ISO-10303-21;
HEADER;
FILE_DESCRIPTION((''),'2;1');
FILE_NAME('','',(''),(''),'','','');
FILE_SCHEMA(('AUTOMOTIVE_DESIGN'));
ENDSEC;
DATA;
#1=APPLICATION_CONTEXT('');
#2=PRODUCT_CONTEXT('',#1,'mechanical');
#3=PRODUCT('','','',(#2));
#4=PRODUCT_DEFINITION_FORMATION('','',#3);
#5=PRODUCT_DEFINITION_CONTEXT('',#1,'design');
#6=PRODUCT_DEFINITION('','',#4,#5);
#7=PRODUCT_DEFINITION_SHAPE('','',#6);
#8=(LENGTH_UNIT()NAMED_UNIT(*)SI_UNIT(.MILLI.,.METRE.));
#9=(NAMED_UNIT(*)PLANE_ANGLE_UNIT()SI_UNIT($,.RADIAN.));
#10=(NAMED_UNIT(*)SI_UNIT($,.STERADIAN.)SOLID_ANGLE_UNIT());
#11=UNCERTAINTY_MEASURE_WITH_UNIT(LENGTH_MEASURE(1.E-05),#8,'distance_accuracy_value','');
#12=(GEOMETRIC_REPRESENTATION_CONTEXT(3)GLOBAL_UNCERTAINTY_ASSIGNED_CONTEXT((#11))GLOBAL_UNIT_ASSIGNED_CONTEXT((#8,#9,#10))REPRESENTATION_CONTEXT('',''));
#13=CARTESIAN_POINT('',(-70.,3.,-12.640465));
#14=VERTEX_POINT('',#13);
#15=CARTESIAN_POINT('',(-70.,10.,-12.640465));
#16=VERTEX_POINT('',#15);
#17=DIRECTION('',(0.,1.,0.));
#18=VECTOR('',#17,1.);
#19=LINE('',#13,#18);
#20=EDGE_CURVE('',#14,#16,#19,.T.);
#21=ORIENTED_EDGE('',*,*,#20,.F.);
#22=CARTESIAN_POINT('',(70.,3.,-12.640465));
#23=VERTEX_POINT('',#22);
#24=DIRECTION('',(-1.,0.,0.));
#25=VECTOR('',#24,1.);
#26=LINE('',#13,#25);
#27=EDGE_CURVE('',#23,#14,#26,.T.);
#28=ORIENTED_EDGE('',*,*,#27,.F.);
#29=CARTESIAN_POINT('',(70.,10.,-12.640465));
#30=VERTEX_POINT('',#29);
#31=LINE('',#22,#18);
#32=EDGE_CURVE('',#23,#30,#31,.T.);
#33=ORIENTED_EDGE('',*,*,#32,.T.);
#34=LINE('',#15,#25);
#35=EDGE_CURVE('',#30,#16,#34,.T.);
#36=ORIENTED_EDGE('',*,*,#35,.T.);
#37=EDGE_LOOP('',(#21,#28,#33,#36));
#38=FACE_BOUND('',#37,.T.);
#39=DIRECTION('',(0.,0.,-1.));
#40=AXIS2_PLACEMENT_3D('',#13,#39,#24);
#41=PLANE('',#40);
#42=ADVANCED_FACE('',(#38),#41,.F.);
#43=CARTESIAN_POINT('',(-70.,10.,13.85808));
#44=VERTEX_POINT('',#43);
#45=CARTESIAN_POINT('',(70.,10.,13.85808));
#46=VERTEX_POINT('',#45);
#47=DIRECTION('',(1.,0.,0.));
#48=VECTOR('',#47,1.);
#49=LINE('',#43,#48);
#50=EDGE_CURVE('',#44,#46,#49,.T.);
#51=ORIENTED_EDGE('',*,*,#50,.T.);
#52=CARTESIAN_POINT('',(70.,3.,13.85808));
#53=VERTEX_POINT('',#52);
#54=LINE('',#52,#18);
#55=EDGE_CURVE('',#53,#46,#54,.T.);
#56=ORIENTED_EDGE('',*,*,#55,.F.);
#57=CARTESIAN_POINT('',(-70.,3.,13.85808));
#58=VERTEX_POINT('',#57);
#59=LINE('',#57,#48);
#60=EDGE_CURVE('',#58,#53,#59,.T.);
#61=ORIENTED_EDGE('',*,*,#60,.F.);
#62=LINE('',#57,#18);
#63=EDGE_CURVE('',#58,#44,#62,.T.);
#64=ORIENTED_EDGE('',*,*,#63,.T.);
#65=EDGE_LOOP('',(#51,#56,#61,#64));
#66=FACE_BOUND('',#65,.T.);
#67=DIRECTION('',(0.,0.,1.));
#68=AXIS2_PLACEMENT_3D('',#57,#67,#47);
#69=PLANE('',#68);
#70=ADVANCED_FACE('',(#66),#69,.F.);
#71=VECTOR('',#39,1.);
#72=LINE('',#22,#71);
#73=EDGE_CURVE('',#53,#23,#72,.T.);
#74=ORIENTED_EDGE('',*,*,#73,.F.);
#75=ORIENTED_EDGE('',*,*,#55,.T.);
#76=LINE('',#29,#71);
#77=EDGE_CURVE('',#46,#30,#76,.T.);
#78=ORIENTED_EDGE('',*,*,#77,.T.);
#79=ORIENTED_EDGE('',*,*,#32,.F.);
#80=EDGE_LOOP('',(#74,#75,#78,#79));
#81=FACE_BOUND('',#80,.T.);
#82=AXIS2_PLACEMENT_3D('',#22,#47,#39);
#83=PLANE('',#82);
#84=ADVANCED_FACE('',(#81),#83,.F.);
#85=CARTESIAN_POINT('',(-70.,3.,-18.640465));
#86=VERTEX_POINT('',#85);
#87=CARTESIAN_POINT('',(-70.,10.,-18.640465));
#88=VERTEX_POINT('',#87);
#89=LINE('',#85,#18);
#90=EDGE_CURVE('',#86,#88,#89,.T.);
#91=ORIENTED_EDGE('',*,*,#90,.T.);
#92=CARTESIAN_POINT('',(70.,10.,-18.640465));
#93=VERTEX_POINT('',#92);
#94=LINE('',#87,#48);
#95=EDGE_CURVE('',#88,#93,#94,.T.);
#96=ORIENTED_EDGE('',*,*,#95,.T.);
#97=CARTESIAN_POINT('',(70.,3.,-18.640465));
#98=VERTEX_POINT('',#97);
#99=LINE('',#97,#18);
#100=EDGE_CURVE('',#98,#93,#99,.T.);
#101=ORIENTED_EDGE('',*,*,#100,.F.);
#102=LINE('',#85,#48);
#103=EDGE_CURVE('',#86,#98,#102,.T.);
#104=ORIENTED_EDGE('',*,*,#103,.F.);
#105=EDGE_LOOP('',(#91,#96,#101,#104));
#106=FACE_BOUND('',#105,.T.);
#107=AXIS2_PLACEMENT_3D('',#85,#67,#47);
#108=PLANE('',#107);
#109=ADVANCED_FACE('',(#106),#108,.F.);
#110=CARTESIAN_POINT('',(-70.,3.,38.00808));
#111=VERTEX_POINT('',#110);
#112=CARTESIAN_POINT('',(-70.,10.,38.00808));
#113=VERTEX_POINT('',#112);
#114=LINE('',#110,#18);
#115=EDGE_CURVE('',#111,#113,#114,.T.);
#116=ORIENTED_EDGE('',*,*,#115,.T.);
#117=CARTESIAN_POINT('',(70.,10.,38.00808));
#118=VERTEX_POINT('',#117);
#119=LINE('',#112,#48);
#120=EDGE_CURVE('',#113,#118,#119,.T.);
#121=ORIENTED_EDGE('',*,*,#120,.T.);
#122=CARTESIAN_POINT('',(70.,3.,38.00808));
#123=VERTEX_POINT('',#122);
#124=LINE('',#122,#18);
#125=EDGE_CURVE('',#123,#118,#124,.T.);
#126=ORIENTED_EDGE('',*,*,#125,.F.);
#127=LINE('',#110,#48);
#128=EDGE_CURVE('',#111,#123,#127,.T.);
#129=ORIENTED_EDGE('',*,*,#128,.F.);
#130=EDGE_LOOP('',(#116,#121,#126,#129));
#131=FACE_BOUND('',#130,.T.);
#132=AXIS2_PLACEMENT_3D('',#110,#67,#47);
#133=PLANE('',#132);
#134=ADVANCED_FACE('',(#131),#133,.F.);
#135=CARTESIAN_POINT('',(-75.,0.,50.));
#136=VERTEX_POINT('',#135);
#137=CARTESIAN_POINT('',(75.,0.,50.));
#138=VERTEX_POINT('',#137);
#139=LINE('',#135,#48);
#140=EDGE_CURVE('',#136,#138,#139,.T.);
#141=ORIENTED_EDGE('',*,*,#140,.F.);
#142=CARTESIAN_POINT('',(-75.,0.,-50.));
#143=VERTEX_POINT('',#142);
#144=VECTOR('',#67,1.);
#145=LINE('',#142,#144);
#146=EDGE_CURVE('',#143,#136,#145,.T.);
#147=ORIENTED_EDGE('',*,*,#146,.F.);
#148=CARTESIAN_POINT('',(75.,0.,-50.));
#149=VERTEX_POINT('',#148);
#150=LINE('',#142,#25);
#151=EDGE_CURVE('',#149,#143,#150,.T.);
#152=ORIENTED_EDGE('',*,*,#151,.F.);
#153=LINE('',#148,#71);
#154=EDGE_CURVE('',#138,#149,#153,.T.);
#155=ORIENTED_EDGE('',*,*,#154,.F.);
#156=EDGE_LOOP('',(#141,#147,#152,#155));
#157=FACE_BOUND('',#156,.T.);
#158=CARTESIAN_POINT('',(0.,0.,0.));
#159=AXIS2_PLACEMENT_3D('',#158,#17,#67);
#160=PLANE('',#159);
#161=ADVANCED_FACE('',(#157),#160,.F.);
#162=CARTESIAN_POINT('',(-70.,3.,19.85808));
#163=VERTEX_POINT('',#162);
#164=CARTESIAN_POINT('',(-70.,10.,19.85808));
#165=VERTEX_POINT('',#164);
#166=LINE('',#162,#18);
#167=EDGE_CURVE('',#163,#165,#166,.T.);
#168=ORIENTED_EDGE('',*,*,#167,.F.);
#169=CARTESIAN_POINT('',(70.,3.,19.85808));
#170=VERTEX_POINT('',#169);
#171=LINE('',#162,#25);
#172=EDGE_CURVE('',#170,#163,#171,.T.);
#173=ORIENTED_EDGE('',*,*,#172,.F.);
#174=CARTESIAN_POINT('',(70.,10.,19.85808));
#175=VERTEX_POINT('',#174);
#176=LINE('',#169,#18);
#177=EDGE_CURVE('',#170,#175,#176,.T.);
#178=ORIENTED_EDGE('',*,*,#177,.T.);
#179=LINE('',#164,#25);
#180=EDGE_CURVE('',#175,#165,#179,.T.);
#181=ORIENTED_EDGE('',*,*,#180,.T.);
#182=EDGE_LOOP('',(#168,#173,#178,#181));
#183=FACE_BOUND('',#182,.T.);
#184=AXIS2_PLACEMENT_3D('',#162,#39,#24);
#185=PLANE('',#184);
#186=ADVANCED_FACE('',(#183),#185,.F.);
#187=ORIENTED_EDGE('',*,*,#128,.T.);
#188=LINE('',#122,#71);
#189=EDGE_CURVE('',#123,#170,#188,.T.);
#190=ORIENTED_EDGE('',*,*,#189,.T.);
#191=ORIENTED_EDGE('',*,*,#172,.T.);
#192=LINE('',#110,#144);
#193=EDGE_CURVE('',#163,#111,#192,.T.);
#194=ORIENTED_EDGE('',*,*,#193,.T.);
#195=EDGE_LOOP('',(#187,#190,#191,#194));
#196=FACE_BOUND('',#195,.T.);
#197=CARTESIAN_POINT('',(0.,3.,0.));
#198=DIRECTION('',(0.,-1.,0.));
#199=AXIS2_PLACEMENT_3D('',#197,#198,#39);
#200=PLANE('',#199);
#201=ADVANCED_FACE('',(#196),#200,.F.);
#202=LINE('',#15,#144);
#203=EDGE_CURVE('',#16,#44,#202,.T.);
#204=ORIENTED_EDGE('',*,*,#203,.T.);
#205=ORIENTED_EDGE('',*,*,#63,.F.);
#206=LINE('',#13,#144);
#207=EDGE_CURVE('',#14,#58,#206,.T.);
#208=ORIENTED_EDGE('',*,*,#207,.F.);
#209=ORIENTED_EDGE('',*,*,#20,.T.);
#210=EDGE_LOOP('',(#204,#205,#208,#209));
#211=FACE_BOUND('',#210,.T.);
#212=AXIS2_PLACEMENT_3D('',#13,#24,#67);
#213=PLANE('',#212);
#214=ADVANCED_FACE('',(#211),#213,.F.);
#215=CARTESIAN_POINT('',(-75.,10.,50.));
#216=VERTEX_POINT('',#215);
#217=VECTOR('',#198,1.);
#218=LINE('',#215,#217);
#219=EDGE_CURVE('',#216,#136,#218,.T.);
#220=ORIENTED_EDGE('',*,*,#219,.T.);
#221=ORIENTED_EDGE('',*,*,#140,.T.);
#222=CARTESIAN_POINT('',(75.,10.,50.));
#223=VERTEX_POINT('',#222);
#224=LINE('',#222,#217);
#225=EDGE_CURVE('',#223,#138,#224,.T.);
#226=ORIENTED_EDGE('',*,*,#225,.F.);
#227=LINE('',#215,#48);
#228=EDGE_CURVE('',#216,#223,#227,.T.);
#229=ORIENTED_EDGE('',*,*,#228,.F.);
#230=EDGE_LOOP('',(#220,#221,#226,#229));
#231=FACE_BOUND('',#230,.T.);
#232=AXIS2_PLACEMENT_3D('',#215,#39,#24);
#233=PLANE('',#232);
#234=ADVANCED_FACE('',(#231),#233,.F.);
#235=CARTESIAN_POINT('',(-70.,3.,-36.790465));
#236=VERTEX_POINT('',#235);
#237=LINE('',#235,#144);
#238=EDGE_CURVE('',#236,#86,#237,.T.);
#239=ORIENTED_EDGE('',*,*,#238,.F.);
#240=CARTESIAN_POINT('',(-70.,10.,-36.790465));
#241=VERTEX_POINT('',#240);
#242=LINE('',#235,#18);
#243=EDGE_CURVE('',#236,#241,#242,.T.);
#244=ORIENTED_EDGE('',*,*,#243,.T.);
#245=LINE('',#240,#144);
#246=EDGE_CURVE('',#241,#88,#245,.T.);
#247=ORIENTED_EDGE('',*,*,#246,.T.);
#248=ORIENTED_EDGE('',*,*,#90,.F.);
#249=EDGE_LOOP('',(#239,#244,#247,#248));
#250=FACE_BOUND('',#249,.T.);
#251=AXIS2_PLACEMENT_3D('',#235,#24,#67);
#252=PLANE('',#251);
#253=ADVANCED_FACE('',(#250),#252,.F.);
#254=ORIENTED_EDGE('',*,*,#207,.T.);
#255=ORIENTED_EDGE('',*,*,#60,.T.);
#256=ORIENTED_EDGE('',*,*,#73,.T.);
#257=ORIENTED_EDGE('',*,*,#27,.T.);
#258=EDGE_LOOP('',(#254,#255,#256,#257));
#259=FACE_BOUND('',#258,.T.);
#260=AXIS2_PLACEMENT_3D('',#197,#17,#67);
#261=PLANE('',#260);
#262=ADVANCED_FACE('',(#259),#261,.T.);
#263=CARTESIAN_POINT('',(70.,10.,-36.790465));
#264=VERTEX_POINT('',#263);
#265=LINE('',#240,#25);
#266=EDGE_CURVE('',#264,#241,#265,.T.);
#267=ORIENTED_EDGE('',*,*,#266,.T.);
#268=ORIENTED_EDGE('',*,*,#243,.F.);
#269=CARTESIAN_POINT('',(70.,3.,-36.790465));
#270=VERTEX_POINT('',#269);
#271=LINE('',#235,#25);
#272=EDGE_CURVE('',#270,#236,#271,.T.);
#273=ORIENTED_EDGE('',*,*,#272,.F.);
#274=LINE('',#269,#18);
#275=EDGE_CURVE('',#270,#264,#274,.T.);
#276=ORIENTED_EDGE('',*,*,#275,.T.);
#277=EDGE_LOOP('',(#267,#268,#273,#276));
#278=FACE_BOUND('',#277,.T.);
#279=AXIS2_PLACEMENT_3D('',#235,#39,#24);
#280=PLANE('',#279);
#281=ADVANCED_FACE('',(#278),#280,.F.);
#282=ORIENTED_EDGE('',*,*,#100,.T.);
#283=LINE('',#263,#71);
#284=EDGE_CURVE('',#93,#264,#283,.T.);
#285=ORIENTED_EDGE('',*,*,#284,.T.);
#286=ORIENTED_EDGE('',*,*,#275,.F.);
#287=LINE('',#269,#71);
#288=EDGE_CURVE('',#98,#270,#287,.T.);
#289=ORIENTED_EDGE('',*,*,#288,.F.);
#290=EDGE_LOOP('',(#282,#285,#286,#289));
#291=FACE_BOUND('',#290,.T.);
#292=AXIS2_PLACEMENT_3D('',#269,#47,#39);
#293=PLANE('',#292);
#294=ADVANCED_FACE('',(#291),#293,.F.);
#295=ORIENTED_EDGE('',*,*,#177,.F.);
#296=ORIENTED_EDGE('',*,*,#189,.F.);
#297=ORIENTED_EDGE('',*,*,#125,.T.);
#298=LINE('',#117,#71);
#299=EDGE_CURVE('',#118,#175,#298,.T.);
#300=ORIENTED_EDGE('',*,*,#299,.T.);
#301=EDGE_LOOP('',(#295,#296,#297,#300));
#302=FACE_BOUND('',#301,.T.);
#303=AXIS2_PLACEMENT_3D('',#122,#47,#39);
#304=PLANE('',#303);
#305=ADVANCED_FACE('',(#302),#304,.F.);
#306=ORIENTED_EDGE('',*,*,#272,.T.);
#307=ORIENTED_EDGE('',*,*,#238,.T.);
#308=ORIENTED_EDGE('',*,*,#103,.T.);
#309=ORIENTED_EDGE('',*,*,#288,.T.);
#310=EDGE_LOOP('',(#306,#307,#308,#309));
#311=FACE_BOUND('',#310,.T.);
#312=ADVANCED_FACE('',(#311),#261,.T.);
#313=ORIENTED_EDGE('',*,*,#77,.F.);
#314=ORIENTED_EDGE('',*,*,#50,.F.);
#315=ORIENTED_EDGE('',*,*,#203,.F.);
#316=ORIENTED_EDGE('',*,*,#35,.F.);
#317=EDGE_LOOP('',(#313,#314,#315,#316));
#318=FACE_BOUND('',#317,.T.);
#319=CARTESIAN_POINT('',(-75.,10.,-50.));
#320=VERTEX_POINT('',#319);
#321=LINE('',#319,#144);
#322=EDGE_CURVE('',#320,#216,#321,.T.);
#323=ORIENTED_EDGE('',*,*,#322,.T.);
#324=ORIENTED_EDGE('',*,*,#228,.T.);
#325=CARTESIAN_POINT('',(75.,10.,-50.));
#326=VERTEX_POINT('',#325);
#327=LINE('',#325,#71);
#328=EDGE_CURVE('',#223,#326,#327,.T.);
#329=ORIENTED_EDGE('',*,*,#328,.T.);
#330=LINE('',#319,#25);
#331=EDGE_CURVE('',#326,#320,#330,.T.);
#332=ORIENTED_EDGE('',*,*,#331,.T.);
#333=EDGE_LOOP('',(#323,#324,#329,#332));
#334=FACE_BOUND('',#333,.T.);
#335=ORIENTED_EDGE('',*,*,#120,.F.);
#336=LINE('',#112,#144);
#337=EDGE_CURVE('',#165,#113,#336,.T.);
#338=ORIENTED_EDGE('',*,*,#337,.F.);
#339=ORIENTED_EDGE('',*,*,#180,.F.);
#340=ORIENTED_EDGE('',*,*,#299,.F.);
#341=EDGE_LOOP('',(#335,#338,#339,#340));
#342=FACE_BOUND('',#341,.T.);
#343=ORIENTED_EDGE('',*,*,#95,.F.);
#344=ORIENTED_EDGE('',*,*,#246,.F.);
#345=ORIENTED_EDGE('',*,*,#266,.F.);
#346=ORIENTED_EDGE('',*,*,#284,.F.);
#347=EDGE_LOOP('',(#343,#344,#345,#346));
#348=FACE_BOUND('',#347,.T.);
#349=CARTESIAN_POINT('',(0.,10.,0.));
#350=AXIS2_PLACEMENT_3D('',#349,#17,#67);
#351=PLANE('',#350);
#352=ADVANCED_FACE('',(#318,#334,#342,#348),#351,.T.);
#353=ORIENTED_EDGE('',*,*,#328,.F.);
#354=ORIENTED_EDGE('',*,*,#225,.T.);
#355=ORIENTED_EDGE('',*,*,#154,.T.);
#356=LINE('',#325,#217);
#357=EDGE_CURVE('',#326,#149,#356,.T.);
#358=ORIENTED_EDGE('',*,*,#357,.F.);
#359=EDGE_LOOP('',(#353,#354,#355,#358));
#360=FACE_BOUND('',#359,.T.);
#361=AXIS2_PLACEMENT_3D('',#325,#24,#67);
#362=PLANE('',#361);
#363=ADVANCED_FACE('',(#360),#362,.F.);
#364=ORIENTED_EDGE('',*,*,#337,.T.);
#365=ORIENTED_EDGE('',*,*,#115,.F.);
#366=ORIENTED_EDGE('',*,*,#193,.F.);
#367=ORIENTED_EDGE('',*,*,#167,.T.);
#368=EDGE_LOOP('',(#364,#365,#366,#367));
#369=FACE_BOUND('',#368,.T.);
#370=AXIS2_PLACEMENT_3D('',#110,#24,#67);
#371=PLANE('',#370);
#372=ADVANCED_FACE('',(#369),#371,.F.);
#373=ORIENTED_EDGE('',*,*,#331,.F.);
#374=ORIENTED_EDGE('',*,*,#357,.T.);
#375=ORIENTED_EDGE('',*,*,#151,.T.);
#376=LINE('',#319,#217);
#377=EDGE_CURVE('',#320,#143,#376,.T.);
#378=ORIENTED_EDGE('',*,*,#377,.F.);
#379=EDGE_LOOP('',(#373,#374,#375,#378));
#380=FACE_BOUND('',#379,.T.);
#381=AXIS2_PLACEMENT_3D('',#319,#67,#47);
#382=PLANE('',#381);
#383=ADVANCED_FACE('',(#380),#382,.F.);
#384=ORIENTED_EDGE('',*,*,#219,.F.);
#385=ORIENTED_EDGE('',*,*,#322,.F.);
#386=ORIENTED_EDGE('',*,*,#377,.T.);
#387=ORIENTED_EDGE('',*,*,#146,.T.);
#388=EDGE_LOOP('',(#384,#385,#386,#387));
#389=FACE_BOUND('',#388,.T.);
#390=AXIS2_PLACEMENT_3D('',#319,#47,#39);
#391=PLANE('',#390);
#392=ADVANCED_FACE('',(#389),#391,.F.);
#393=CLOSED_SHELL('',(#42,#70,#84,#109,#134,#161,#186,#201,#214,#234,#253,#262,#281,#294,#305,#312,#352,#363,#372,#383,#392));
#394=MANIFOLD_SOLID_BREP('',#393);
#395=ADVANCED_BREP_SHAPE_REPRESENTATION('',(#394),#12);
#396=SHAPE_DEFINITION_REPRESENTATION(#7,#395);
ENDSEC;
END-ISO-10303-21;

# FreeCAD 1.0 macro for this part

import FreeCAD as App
import Part
import Sketcher
from FreeCAD import Vector
Q = App.Units.Quantity


def add_polygon(sketch, points):
    """Adds a closed chain of lines whose ends are joined by coincident constraints."""
    first, n = sketch.GeometryCount, len(points)
    for a, b in zip(points, points[1:] + points[:1]):
        sketch.addGeometry(Part.LineSegment(App.Vector(*a, 0), App.Vector(*b, 0)), False)
    for i in range(n):
        sketch.addConstraint(Sketcher.Constraint("Coincident", first + i, 2, first + (i + 1) % n, 1))

doc = App.newDocument("Part")
body = doc.addObject("PartDesign::Body", "Body")

sketch1 = body.newObject("Sketcher::SketchObject", "Sketch")
sketch1.AttachmentSupport = (doc.getObject("XZ_Plane"), [""])
sketch1.MapMode = "FlatFace"
add_polygon(sketch1, [(-75, -50), (-75, 50), (75, 50), (75, -50)])
sketch1.addConstraint(Sketcher.Constraint("Vertical", 0))
sketch1.addConstraint(Sketcher.Constraint("Horizontal", 1))
sketch1.addConstraint(Sketcher.Constraint("Vertical", 2))
sketch1.addConstraint(Sketcher.Constraint("Horizontal", 3))
sketch1.addConstraint(Sketcher.Constraint("Symmetric", 0, 2, 2, 2, -1, 1))
sketch1.addConstraint(Sketcher.Constraint("DistanceX", 1, 1, 1, 2, Q("150 mm")))
sketch1.addConstraint(Sketcher.Constraint("DistanceY", 0, 1, 0, 2, Q("100 mm")))
pad1 = body.newObject("PartDesign::Pad", "Pad")
pad1.Profile = sketch1
pad1.Length = 10
pad1.Reversed = True

sketch2 = body.newObject("Sketcher::SketchObject", "Sketch001")
sketch2.AttachmentSupport = (doc.getObject("XZ_Plane"), [""])
sketch2.MapMode = "FlatFace"
sketch2.AttachmentOffset = App.Placement(Vector(0, 0, -10), App.Rotation())
add_polygon(sketch2, [(-70, 19.85808), (-70, 38.00808), (70, 38.00808), (70, 19.85808)])
add_polygon(sketch2, [(-70, -36.790465), (-70, -18.640465), (70, -18.640465), (70, -36.790465)])
add_polygon(sketch2, [(-70, -12.640465), (-70, 13.85808), (70, 13.85808), (70, -12.640465)])
sketch2.addConstraint(Sketcher.Constraint("Vertical", 0))
sketch2.addConstraint(Sketcher.Constraint("Horizontal", 1))
sketch2.addConstraint(Sketcher.Constraint("Vertical", 2))
sketch2.addConstraint(Sketcher.Constraint("Horizontal", 3))
sketch2.addConstraint(Sketcher.Constraint("Vertical", 4))
sketch2.addConstraint(Sketcher.Constraint("Horizontal", 5))
sketch2.addConstraint(Sketcher.Constraint("Vertical", 6))
sketch2.addConstraint(Sketcher.Constraint("Horizontal", 7))
sketch2.addConstraint(Sketcher.Constraint("Vertical", 8))
sketch2.addConstraint(Sketcher.Constraint("Horizontal", 9))
sketch2.addConstraint(Sketcher.Constraint("Vertical", 10))
sketch2.addConstraint(Sketcher.Constraint("Horizontal", 11))
sketch2.addConstraint(Sketcher.Constraint("Vertical", 3, 2, 4, 2))
sketch2.addConstraint(Sketcher.Constraint("Vertical", 2, 2, 5, 2))
sketch2.addConstraint(Sketcher.Constraint("Vertical", 7, 2, 8, 2))
sketch2.addConstraint(Sketcher.Constraint("Vertical", 6, 2, 9, 2))
sketch2.addConstraint(Sketcher.Constraint("Equal", 2, 4))
sketch2.addConstraint(Sketcher.Constraint("DistanceX", 1, 1, 1, 2, Q("140 mm")))
sketch2.addConstraint(Sketcher.Constraint("DistanceX", 0, 2, -1, 1, Q("70 mm")))
sketch2.addConstraint(Sketcher.Constraint("DistanceY", 8, 2, 3, 2, Q("6 mm")))
sketch2.addConstraint(Sketcher.Constraint("DistanceY", 5, 2, 10, 2, Q("6 mm")))
sketch2.addConstraint(Sketcher.Constraint("DistanceY", 0, 1, 0, 2, Q("18.15 mm")))
sketch2.addConstraint(Sketcher.Constraint("DistanceY", 8, 1, 8, 2, Q("26.498544 mm")))
sketch2.addConstraint(Sketcher.Constraint("DistanceY", -1, 1, 0, 2, Q("38.00808 mm")))
pocket1 = body.newObject("PartDesign::Pocket", "Pocket")
pocket1.Profile = sketch2
pocket1.Length = 7
pocket1.Reversed = True

doc.recompute()
